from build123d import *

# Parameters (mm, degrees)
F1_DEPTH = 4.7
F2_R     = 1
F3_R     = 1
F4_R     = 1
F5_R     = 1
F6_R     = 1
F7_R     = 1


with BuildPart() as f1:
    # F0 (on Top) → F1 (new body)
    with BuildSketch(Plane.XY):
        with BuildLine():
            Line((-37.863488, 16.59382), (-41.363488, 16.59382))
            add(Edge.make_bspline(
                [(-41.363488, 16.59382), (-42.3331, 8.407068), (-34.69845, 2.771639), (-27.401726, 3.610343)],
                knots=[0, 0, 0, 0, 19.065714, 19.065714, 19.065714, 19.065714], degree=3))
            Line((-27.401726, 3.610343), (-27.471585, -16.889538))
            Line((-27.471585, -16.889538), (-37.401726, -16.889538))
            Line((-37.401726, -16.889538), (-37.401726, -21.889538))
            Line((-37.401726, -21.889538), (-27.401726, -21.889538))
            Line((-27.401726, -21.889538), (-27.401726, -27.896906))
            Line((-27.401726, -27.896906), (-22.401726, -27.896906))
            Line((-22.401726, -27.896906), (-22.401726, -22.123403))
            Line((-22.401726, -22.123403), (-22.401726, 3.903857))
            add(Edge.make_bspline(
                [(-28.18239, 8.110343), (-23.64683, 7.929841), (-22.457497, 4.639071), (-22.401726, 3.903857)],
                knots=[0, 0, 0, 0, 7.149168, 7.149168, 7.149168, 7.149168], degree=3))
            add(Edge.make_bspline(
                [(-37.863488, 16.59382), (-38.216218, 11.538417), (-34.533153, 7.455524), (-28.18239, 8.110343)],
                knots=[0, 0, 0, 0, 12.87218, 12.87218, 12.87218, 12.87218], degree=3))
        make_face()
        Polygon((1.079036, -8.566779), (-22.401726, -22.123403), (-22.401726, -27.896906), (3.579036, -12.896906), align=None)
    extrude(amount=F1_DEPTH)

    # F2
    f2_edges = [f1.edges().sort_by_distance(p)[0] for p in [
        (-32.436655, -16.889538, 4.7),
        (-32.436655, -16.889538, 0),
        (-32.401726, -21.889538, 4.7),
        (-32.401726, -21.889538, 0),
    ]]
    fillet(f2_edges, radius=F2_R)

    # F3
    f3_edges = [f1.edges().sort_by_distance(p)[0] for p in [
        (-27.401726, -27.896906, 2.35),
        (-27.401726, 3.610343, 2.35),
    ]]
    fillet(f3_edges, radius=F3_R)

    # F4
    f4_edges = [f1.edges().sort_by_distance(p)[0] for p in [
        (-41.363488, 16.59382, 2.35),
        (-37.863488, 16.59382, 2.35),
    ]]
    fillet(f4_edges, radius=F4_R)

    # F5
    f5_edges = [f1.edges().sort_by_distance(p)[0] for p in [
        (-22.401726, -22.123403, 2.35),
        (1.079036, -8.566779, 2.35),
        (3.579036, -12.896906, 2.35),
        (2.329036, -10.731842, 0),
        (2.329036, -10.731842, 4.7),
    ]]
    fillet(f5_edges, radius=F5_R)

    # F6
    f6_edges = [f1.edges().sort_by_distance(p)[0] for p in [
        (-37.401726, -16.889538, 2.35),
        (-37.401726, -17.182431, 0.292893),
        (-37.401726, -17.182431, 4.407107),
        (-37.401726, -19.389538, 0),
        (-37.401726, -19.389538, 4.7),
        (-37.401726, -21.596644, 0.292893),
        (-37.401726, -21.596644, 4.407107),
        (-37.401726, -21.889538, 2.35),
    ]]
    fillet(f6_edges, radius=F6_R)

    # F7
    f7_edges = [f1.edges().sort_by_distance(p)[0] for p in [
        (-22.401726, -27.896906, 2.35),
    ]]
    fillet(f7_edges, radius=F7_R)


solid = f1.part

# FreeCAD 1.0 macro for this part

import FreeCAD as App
import Part
import Sketcher

V = App.Vector


def edges_at(feature, points):
    """Names of the edges that pass closest to the given points."""
    edges = feature.Shape.Edges
    near = lambda p: min(range(len(edges)), key=lambda i: edges[i].distToShape(Part.Vertex(*p))[0])
    return sorted({f"Edge{near(p) + 1}" for p in points})

doc = App.newDocument("Part")
body = doc.addObject("PartDesign::Body", "Body")

sketch1 = body.newObject("Sketcher::SketchObject", "Sketch")
sketch1.AttachmentSupport = (doc.getObject("XY_Plane"), [""])
sketch1.MapMode = "FlatFace"
sketch1.addGeometry([
    Part.LineSegment(V(-37.863488, 16.59382, 0), V(-41.363488, 16.59382, 0)),
    Part.BSplineCurve([V(-41.363488, 16.59382, 0), V(-42.3331, 8.407068, 0), V(-34.69845, 2.771639, 0), V(-27.401726, 3.610343, 0)], [4, 4], [0, 19.065714], False, 3, [1, 1, 1, 1], False),
    Part.LineSegment(V(-27.401726, 3.610343, 0), V(-27.471585, -16.889538, 0)),
    Part.LineSegment(V(-27.471585, -16.889538, 0), V(-37.401726, -16.889538, 0)),
    Part.LineSegment(V(-37.401726, -16.889538, 0), V(-37.401726, -21.889538, 0)),
    Part.LineSegment(V(-37.401726, -21.889538, 0), V(-27.401726, -21.889538, 0)),
    Part.LineSegment(V(-27.401726, -21.889538, 0), V(-27.401726, -27.896906, 0)),
    Part.LineSegment(V(-27.401726, -27.896906, 0), V(-22.401726, -27.896906, 0)),
    Part.LineSegment(V(-22.401726, -27.896906, 0), V(3.579036, -12.896906, 0)),
    Part.LineSegment(V(3.579036, -12.896906, 0), V(1.079036, -8.566779, 0)),
    Part.LineSegment(V(1.079036, -8.566779, 0), V(-22.401726, -22.123403, 0)),
    Part.LineSegment(V(-22.401726, -22.123403, 0), V(-22.401726, 3.903857, 0)),
    Part.BSplineCurve([V(-28.18239, 8.110343, 0), V(-23.64683, 7.929841, 0), V(-22.457497, 4.639071, 0), V(-22.401726, 3.903857, 0)], [4, 4], [0, 7.149168], False, 3, [1, 1, 1, 1], False),
    Part.BSplineCurve([V(-37.863488, 16.59382, 0), V(-38.216218, 11.538417, 0), V(-34.533153, 7.455524, 0), V(-28.18239, 8.110343, 0)], [4, 4], [0, 12.87218], False, 3, [1, 1, 1, 1], False),
], False)
sketch1.addConstraint([
    Sketcher.Constraint("Block", 1),
    Sketcher.Constraint("Block", 12),
    Sketcher.Constraint("Block", 13),
    Sketcher.Constraint("Coincident", 0, 2, 1, 1),
    Sketcher.Constraint("Coincident", 1, 2, 2, 1),
    Sketcher.Constraint("Coincident", 2, 2, 3, 1),
    Sketcher.Constraint("Coincident", 3, 2, 4, 1),
    Sketcher.Constraint("Coincident", 4, 2, 5, 1),
    Sketcher.Constraint("Coincident", 5, 2, 6, 1),
    Sketcher.Constraint("Coincident", 6, 2, 7, 1),
    Sketcher.Constraint("Coincident", 7, 2, 8, 1),
    Sketcher.Constraint("Coincident", 8, 2, 9, 1),
    Sketcher.Constraint("Coincident", 9, 2, 10, 1),
    Sketcher.Constraint("Coincident", 10, 2, 11, 1),
    Sketcher.Constraint("Coincident", 11, 2, 12, 2),
    Sketcher.Constraint("Coincident", 13, 1, 0, 1),
    Sketcher.Constraint("Horizontal", 3),
    Sketcher.Constraint("Vertical", 4),
    Sketcher.Constraint("Horizontal", 5),
    Sketcher.Constraint("Vertical", 6),
    Sketcher.Constraint("Horizontal", 7),
    Sketcher.Constraint("Vertical", 11),
    Sketcher.Constraint("DistanceX", 5, 1, 5, 2, 10.0),
    Sketcher.Constraint("DistanceX", 7, 1, 7, 2, 5.0),
    Sketcher.Constraint("DistanceY", 4, 2, 4, 1, 5.0),
    Sketcher.Constraint("Distance", 8, 30.0),
    Sketcher.Constraint("Distance", 9, 5.0),
    Sketcher.Constraint("DistanceY", 7, 2, 8, 2, 15.0),
    Sketcher.Constraint("DistanceX", 5, 2, 10, 2, 5.0),
    Sketcher.Constraint("Distance", 2, 20.5),
    Sketcher.Constraint("DistanceX", 9, 2, 8, 2, 2.5),
    Sketcher.Constraint("DistanceX", 3, 2, 3, 1, 9.930141),
    Sketcher.Constraint("DistanceY", 11, 1, 11, 2, 26.02726),
    Sketcher.Constraint("Distance", 10, 27.113248),
])
pad1 = body.newObject("PartDesign::Pad", "Pad")
pad1.Profile = sketch1
pad1.Length = 4.7
doc.recompute()

fillet = body.newObject("PartDesign::Fillet", "Fillet")
fillet.Base = (pad1, edges_at(pad1, [
    (-32.437, -16.89, 4.7),
    (-32.437, -16.89, 0),
    (-32.402, -21.89, 4.7),
    (-32.402, -21.89, 0),
]))
fillet.Radius = 1
doc.recompute()

fillet2 = body.newObject("PartDesign::Fillet", "Fillet001")
fillet2.Base = (fillet, edges_at(fillet, [(-27.402, -27.897, 2.35), (-27.402, 3.61, 2.35)]))
fillet2.Radius = 1
doc.recompute()

fillet3 = body.newObject("PartDesign::Fillet", "Fillet002")
fillet3.Base = (fillet2, edges_at(fillet2, [(-41.363, 16.594, 2.35), (-37.863, 16.594, 2.35)]))
fillet3.Radius = 1
doc.recompute()

fillet4 = body.newObject("PartDesign::Fillet", "Fillet003")
fillet4.Base = (fillet3, edges_at(fillet3, [
    (-22.402, -22.123, 2.35),
    (1.079, -8.567, 2.35),
    (3.579, -12.897, 2.35),
    (2.329, -10.732, 0),
    (2.329, -10.732, 4.7),
]))
fillet4.Radius = 1
doc.recompute()

fillet5 = body.newObject("PartDesign::Fillet", "Fillet004")
fillet5.Base = (fillet4, edges_at(fillet4, [
    (-37.402, -16.89, 2.35),
    (-37.402, -17.182, 0.293),
    (-37.402, -17.182, 4.407),
    (-37.402, -19.39, 0),
    (-37.402, -19.39, 4.7),
    (-37.402, -21.597, 0.293),
    (-37.402, -21.597, 4.407),
    (-37.402, -21.89, 2.35),
]))
fillet5.Radius = 1
doc.recompute()

fillet6 = body.newObject("PartDesign::Fillet", "Fillet005")
fillet6.Base = (fillet5, edges_at(fillet5, [(-22.402, -27.897, 2.35)]))
fillet6.Radius = 1

doc.recompute()
